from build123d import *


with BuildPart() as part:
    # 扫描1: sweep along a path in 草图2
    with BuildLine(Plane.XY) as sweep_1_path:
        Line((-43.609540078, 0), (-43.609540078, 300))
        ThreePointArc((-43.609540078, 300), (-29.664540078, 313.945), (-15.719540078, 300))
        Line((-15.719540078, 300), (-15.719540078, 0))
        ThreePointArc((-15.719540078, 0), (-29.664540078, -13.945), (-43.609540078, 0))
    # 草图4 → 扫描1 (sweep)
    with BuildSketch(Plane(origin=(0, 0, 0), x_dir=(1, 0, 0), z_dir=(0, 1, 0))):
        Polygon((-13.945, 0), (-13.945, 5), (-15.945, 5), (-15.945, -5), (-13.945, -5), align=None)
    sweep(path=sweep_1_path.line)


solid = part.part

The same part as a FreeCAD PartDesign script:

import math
import FreeCAD as App
import Part
import Sketcher


def add_polygon(sketch, points):
    """Adds a closed chain of lines whose ends are joined by coincident constraints."""
    first, n = sketch.GeometryCount, len(points)
    for a, b in zip(points, points[1:] + points[:1]):
        sketch.addGeometry(Part.LineSegment(App.Vector(*a, 0), App.Vector(*b, 0)), False)
    for i in range(n):
        sketch.addConstraint(Sketcher.Constraint("Coincident", first + i, 2, first + (i + 1) % n, 1))

doc = App.newDocument("Part")
body = doc.addObject("PartDesign::Body", "Body")

# Sketch on XZ plane
sketch1 = body.newObject("Sketcher::SketchObject", "Sketch")
sketch1.AttachmentSupport = (doc.getObject("XZ_Plane"), [""])
sketch1.MapMode = "FlatFace"
add_polygon(sketch1, [(-13.9, -5), (-15.9, -5), (-15.9, 5), (-13.9, 5)])  # lines 0-3
sketch1.addConstraint([
    Sketcher.Constraint("Horizontal", 0),
    Sketcher.Constraint("Vertical", 1),
    Sketcher.Constraint("Horizontal", 2),
    Sketcher.Constraint("Vertical", 3),
    Sketcher.Constraint("DistanceX", 0, 2, 0, 1, 2.0),
    Sketcher.Constraint("DistanceY", 1, 1, 1, 2, 10.0),
    Sketcher.Constraint("DistanceY", 0, 2, -1, 1, 5.0),
    Sketcher.Constraint("DistanceX", 0, 2, -1, 1, 15.945),
])

# Sketch on XY plane
sketch2 = body.newObject("Sketcher::SketchObject", "Sketch001")
sketch2.AttachmentSupport = (doc.getObject("XY_Plane"), [""])
sketch2.MapMode = "FlatFace"
sketch2.addGeometry([
    Part.LineSegment(App.Vector(-44, 0, 0), App.Vector(-44, 300, 0)),
    Part.ArcOfCircle(Part.Circle(App.Vector(-30, 300, 0), App.Vector(0, 0, 1), 14), math.radians(0), math.radians(180)),
    Part.LineSegment(App.Vector(-16, 300, 0), App.Vector(-16, 0, 0)),
    Part.ArcOfCircle(Part.Circle(App.Vector(-30, 0, 0), App.Vector(0, 0, 1), 14), math.radians(180), math.radians(360)),
], False)
sketch2.addConstraint([
    Sketcher.Constraint("Tangent", 0, 2, 1, 2),
    Sketcher.Constraint("Tangent", 1, 1, 2, 1),
    Sketcher.Constraint("Tangent", 2, 2, 3, 2),
    Sketcher.Constraint("Tangent", 3, 1, 0, 1),
    Sketcher.Constraint("Vertical", 0),
    Sketcher.Constraint("Vertical", 2),
    Sketcher.Constraint("PointOnObject", 3, 3, -1),
    Sketcher.Constraint("DistanceY", 0, 1, 0, 2, 300.0),
    Sketcher.Constraint("Radius", 1, 13.945),
    Sketcher.Constraint("DistanceX", 1, 3, -1, 1, 29.66454),
])
doc.recompute()

additivepipe = body.newObject("PartDesign::AdditivePipe", "AdditivePipe")
additivepipe.Profile = sketch1
additivepipe.Spine = (sketch2, ["Edge1", "Edge2", "Edge3", "Edge4"])

doc.recompute()
